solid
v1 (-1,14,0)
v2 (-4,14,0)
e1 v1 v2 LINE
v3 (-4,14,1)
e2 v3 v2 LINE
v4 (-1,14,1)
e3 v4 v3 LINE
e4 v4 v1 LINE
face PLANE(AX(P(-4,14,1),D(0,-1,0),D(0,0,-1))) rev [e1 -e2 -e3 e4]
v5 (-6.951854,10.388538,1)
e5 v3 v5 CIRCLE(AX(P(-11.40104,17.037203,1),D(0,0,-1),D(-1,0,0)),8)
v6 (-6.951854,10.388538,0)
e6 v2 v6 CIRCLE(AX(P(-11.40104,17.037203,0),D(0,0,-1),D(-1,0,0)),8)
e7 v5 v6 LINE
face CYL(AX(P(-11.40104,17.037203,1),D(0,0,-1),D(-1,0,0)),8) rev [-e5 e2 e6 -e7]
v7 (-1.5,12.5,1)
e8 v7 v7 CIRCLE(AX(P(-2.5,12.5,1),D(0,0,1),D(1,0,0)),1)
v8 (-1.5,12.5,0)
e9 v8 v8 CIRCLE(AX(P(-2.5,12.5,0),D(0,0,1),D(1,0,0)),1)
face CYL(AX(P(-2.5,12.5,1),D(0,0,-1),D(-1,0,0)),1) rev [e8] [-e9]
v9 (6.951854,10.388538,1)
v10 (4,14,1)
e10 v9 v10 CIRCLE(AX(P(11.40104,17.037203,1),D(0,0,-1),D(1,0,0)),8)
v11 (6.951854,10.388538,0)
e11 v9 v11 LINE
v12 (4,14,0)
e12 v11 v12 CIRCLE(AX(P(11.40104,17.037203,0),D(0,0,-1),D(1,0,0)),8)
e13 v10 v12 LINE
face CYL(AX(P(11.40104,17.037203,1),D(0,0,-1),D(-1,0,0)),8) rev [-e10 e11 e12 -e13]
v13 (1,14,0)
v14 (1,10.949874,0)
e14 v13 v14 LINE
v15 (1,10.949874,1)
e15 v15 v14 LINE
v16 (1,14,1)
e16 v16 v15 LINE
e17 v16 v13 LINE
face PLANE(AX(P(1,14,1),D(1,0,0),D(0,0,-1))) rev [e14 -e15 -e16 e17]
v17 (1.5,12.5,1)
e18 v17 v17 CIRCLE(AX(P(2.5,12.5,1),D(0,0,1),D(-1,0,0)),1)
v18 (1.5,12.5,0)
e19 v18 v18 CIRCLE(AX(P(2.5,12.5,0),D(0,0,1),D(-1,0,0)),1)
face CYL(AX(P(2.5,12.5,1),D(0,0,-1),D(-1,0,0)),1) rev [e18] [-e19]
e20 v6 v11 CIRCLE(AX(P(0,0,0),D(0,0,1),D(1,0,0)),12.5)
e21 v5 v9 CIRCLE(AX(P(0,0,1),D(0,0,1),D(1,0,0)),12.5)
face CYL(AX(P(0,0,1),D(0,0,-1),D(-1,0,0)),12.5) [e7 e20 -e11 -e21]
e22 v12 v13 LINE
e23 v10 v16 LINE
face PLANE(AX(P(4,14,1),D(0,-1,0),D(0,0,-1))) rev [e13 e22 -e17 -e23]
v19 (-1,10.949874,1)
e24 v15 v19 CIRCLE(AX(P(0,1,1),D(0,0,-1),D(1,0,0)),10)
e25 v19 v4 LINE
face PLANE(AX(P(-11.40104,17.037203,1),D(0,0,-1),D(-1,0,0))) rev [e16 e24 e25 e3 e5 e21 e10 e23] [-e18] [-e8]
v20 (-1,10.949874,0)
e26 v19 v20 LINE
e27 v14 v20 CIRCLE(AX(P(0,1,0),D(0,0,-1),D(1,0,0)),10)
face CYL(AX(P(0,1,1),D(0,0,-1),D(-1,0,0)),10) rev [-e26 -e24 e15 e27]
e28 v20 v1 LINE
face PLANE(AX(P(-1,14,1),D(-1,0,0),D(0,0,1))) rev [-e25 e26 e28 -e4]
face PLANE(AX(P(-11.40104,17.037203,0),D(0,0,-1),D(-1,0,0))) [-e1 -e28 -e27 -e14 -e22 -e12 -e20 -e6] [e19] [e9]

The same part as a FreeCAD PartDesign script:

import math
import FreeCAD as App
import Part
import Sketcher
from FreeCAD import Vector
Q = App.Units.Quantity

doc = App.newDocument("Part")
params = doc.addObject("Spreadsheet::Sheet", "Params")
for row, (alias, value) in enumerate([
    ("sketch1_diameter", "2 mm"),
    ("sketch1_radius", "8 mm"),
    ("sketch1_radius2", "10 mm"),
    ("sketch1_radius3", "12.5 mm"),
    ("sketch1_width", "3 mm"),
    ("pad1_length", "1 mm"),
], start=1):
    params.set(f"A{row}", alias)
    params.set(f"B{row}", "=" + value)
    params.setAlias(f"B{row}", alias)

body = doc.addObject("PartDesign::Body", "Body")

# Sketch on XY plane
sketch1 = body.newObject("Sketcher::SketchObject", "Sketch")
sketch1.AttachmentSupport = (doc.getObject("XY_Plane"), [""])
sketch1.MapMode = "FlatFace"
sketch1.addGeometry(Part.LineSegment(Vector(-1, 14, 0), Vector(-4, 14, 0)), False)
sketch1.addGeometry(Part.ArcOfCircle(Part.Circle(Vector(-11.4, 17, 0), Vector(0, 0, 1), 8), math.radians(-56), math.radians(-22)), False)
sketch1.addGeometry(Part.ArcOfCircle(Part.Circle(Vector(0, 0, 0), Vector(0, 0, 1), 12.5), math.radians(124), math.radians(416)), False)
sketch1.addGeometry(Part.ArcOfCircle(Part.Circle(Vector(11.4, 17, 0), Vector(0, 0, 1), 8), math.radians(-158), math.radians(-124)), False)
sketch1.addGeometry(Part.LineSegment(Vector(4, 14, 0), Vector(1, 14, 0)), False)
sketch1.addGeometry(Part.LineSegment(Vector(1, 14, 0), Vector(1, 10.9, 0)), False)
sketch1.addGeometry(Part.ArcOfCircle(Part.Circle(Vector(0, 1, 0), Vector(0, 0, 1), 10), math.radians(96), math.radians(444)), False)
sketch1.addGeometry(Part.LineSegment(Vector(-1, 10.9, 0), Vector(-1, 14, 0)), False)
sketch1.addGeometry(Part.Circle(Vector(2.5, 12.5, 0), Vector(0, 0, 1), 1), False)
sketch1.addGeometry(Part.Circle(Vector(-2.5, 12.5, 0), Vector(0, 0, 1), 1), False)
sketch1.addConstraint(Sketcher.Constraint("Coincident", 0, 2, 1, 2))
sketch1.addConstraint(Sketcher.Constraint("Tangent", 1, 1, 2, 1))
sketch1.addConstraint(Sketcher.Constraint("Tangent", 2, 2, 3, 2))
sketch1.addConstraint(Sketcher.Constraint("Coincident", 3, 1, 4, 1))
sketch1.addConstraint(Sketcher.Constraint("Coincident", 4, 2, 5, 1))
sketch1.addConstraint(Sketcher.Constraint("Coincident", 5, 2, 6, 2))
sketch1.addConstraint(Sketcher.Constraint("Coincident", 6, 1, 7, 1))
sketch1.addConstraint(Sketcher.Constraint("Coincident", 7, 2, 0, 1))
sketch1.addConstraint(Sketcher.Constraint("Horizontal", 0))
sketch1.addConstraint(Sketcher.Constraint("Horizontal", 4))
sketch1.addConstraint(Sketcher.Constraint("Vertical", 5))
sketch1.addConstraint(Sketcher.Constraint("Vertical", 7))
sketch1.addConstraint(Sketcher.Constraint("Coincident", 2, 3, -1, 1))
sketch1.addConstraint(Sketcher.Constraint("Equal", 1, 3))
sketch1.addConstraint(Sketcher.Constraint("Equal", 8, 9))
sketch1.addConstraint(Sketcher.Constraint("Symmetric", 8, 3, 9, 3, -2))
sketch1.addConstraint(Sketcher.Constraint("Symmetric", 0, 2, 3, 1, -2))
sketch1.addConstraint(Sketcher.Constraint("Symmetric", 5, 2, 6, 1, -2))
sketch1.addConstraint(Sketcher.Constraint("Diameter", 8, Q("2 mm")))
sketch1.addConstraint(Sketcher.Constraint("Radius", 1, Q("8 mm")))
sketch1.addConstraint(Sketcher.Constraint("Radius", 6, Q("10 mm")))
sketch1.addConstraint(Sketcher.Constraint("Radius", 2, Q("12.5 mm")))
sketch1.addConstraint(Sketcher.Constraint("DistanceX", 0, 2, 0, 1, Q("3 mm")))
sketch1.addConstraint(Sketcher.Constraint("DistanceY", -1, 1, 6, 3, Q("1 mm")))
sketch1.addConstraint(Sketcher.Constraint("DistanceX", 0, 2, -1, 1, Q("4 mm")))
sketch1.addConstraint(Sketcher.Constraint("DistanceY", -1, 1, 0, 2, Q("14 mm")))
sketch1.addConstraint(Sketcher.Constraint("DistanceX", 9, 3, 8, 3, Q("5 mm")))
sketch1.addConstraint(Sketcher.Constraint("DistanceY", -1, 1, 8, 3, Q("12.5 mm")))
sketch1.setExpression("Constraints[18]", "Params.sketch1_diameter")
sketch1.setExpression("Constraints[19]", "Params.sketch1_radius")
sketch1.setExpression("Constraints[20]", "Params.sketch1_radius2")
sketch1.setExpression("Constraints[21]", "Params.sketch1_radius3")
sketch1.setExpression("Constraints[22]", "Params.sketch1_width")
pad1 = body.newObject("PartDesign::Pad", "Pad")
pad1.Profile = sketch1
pad1.setExpression("Length", "Params.pad1_length")

doc.recompute()
